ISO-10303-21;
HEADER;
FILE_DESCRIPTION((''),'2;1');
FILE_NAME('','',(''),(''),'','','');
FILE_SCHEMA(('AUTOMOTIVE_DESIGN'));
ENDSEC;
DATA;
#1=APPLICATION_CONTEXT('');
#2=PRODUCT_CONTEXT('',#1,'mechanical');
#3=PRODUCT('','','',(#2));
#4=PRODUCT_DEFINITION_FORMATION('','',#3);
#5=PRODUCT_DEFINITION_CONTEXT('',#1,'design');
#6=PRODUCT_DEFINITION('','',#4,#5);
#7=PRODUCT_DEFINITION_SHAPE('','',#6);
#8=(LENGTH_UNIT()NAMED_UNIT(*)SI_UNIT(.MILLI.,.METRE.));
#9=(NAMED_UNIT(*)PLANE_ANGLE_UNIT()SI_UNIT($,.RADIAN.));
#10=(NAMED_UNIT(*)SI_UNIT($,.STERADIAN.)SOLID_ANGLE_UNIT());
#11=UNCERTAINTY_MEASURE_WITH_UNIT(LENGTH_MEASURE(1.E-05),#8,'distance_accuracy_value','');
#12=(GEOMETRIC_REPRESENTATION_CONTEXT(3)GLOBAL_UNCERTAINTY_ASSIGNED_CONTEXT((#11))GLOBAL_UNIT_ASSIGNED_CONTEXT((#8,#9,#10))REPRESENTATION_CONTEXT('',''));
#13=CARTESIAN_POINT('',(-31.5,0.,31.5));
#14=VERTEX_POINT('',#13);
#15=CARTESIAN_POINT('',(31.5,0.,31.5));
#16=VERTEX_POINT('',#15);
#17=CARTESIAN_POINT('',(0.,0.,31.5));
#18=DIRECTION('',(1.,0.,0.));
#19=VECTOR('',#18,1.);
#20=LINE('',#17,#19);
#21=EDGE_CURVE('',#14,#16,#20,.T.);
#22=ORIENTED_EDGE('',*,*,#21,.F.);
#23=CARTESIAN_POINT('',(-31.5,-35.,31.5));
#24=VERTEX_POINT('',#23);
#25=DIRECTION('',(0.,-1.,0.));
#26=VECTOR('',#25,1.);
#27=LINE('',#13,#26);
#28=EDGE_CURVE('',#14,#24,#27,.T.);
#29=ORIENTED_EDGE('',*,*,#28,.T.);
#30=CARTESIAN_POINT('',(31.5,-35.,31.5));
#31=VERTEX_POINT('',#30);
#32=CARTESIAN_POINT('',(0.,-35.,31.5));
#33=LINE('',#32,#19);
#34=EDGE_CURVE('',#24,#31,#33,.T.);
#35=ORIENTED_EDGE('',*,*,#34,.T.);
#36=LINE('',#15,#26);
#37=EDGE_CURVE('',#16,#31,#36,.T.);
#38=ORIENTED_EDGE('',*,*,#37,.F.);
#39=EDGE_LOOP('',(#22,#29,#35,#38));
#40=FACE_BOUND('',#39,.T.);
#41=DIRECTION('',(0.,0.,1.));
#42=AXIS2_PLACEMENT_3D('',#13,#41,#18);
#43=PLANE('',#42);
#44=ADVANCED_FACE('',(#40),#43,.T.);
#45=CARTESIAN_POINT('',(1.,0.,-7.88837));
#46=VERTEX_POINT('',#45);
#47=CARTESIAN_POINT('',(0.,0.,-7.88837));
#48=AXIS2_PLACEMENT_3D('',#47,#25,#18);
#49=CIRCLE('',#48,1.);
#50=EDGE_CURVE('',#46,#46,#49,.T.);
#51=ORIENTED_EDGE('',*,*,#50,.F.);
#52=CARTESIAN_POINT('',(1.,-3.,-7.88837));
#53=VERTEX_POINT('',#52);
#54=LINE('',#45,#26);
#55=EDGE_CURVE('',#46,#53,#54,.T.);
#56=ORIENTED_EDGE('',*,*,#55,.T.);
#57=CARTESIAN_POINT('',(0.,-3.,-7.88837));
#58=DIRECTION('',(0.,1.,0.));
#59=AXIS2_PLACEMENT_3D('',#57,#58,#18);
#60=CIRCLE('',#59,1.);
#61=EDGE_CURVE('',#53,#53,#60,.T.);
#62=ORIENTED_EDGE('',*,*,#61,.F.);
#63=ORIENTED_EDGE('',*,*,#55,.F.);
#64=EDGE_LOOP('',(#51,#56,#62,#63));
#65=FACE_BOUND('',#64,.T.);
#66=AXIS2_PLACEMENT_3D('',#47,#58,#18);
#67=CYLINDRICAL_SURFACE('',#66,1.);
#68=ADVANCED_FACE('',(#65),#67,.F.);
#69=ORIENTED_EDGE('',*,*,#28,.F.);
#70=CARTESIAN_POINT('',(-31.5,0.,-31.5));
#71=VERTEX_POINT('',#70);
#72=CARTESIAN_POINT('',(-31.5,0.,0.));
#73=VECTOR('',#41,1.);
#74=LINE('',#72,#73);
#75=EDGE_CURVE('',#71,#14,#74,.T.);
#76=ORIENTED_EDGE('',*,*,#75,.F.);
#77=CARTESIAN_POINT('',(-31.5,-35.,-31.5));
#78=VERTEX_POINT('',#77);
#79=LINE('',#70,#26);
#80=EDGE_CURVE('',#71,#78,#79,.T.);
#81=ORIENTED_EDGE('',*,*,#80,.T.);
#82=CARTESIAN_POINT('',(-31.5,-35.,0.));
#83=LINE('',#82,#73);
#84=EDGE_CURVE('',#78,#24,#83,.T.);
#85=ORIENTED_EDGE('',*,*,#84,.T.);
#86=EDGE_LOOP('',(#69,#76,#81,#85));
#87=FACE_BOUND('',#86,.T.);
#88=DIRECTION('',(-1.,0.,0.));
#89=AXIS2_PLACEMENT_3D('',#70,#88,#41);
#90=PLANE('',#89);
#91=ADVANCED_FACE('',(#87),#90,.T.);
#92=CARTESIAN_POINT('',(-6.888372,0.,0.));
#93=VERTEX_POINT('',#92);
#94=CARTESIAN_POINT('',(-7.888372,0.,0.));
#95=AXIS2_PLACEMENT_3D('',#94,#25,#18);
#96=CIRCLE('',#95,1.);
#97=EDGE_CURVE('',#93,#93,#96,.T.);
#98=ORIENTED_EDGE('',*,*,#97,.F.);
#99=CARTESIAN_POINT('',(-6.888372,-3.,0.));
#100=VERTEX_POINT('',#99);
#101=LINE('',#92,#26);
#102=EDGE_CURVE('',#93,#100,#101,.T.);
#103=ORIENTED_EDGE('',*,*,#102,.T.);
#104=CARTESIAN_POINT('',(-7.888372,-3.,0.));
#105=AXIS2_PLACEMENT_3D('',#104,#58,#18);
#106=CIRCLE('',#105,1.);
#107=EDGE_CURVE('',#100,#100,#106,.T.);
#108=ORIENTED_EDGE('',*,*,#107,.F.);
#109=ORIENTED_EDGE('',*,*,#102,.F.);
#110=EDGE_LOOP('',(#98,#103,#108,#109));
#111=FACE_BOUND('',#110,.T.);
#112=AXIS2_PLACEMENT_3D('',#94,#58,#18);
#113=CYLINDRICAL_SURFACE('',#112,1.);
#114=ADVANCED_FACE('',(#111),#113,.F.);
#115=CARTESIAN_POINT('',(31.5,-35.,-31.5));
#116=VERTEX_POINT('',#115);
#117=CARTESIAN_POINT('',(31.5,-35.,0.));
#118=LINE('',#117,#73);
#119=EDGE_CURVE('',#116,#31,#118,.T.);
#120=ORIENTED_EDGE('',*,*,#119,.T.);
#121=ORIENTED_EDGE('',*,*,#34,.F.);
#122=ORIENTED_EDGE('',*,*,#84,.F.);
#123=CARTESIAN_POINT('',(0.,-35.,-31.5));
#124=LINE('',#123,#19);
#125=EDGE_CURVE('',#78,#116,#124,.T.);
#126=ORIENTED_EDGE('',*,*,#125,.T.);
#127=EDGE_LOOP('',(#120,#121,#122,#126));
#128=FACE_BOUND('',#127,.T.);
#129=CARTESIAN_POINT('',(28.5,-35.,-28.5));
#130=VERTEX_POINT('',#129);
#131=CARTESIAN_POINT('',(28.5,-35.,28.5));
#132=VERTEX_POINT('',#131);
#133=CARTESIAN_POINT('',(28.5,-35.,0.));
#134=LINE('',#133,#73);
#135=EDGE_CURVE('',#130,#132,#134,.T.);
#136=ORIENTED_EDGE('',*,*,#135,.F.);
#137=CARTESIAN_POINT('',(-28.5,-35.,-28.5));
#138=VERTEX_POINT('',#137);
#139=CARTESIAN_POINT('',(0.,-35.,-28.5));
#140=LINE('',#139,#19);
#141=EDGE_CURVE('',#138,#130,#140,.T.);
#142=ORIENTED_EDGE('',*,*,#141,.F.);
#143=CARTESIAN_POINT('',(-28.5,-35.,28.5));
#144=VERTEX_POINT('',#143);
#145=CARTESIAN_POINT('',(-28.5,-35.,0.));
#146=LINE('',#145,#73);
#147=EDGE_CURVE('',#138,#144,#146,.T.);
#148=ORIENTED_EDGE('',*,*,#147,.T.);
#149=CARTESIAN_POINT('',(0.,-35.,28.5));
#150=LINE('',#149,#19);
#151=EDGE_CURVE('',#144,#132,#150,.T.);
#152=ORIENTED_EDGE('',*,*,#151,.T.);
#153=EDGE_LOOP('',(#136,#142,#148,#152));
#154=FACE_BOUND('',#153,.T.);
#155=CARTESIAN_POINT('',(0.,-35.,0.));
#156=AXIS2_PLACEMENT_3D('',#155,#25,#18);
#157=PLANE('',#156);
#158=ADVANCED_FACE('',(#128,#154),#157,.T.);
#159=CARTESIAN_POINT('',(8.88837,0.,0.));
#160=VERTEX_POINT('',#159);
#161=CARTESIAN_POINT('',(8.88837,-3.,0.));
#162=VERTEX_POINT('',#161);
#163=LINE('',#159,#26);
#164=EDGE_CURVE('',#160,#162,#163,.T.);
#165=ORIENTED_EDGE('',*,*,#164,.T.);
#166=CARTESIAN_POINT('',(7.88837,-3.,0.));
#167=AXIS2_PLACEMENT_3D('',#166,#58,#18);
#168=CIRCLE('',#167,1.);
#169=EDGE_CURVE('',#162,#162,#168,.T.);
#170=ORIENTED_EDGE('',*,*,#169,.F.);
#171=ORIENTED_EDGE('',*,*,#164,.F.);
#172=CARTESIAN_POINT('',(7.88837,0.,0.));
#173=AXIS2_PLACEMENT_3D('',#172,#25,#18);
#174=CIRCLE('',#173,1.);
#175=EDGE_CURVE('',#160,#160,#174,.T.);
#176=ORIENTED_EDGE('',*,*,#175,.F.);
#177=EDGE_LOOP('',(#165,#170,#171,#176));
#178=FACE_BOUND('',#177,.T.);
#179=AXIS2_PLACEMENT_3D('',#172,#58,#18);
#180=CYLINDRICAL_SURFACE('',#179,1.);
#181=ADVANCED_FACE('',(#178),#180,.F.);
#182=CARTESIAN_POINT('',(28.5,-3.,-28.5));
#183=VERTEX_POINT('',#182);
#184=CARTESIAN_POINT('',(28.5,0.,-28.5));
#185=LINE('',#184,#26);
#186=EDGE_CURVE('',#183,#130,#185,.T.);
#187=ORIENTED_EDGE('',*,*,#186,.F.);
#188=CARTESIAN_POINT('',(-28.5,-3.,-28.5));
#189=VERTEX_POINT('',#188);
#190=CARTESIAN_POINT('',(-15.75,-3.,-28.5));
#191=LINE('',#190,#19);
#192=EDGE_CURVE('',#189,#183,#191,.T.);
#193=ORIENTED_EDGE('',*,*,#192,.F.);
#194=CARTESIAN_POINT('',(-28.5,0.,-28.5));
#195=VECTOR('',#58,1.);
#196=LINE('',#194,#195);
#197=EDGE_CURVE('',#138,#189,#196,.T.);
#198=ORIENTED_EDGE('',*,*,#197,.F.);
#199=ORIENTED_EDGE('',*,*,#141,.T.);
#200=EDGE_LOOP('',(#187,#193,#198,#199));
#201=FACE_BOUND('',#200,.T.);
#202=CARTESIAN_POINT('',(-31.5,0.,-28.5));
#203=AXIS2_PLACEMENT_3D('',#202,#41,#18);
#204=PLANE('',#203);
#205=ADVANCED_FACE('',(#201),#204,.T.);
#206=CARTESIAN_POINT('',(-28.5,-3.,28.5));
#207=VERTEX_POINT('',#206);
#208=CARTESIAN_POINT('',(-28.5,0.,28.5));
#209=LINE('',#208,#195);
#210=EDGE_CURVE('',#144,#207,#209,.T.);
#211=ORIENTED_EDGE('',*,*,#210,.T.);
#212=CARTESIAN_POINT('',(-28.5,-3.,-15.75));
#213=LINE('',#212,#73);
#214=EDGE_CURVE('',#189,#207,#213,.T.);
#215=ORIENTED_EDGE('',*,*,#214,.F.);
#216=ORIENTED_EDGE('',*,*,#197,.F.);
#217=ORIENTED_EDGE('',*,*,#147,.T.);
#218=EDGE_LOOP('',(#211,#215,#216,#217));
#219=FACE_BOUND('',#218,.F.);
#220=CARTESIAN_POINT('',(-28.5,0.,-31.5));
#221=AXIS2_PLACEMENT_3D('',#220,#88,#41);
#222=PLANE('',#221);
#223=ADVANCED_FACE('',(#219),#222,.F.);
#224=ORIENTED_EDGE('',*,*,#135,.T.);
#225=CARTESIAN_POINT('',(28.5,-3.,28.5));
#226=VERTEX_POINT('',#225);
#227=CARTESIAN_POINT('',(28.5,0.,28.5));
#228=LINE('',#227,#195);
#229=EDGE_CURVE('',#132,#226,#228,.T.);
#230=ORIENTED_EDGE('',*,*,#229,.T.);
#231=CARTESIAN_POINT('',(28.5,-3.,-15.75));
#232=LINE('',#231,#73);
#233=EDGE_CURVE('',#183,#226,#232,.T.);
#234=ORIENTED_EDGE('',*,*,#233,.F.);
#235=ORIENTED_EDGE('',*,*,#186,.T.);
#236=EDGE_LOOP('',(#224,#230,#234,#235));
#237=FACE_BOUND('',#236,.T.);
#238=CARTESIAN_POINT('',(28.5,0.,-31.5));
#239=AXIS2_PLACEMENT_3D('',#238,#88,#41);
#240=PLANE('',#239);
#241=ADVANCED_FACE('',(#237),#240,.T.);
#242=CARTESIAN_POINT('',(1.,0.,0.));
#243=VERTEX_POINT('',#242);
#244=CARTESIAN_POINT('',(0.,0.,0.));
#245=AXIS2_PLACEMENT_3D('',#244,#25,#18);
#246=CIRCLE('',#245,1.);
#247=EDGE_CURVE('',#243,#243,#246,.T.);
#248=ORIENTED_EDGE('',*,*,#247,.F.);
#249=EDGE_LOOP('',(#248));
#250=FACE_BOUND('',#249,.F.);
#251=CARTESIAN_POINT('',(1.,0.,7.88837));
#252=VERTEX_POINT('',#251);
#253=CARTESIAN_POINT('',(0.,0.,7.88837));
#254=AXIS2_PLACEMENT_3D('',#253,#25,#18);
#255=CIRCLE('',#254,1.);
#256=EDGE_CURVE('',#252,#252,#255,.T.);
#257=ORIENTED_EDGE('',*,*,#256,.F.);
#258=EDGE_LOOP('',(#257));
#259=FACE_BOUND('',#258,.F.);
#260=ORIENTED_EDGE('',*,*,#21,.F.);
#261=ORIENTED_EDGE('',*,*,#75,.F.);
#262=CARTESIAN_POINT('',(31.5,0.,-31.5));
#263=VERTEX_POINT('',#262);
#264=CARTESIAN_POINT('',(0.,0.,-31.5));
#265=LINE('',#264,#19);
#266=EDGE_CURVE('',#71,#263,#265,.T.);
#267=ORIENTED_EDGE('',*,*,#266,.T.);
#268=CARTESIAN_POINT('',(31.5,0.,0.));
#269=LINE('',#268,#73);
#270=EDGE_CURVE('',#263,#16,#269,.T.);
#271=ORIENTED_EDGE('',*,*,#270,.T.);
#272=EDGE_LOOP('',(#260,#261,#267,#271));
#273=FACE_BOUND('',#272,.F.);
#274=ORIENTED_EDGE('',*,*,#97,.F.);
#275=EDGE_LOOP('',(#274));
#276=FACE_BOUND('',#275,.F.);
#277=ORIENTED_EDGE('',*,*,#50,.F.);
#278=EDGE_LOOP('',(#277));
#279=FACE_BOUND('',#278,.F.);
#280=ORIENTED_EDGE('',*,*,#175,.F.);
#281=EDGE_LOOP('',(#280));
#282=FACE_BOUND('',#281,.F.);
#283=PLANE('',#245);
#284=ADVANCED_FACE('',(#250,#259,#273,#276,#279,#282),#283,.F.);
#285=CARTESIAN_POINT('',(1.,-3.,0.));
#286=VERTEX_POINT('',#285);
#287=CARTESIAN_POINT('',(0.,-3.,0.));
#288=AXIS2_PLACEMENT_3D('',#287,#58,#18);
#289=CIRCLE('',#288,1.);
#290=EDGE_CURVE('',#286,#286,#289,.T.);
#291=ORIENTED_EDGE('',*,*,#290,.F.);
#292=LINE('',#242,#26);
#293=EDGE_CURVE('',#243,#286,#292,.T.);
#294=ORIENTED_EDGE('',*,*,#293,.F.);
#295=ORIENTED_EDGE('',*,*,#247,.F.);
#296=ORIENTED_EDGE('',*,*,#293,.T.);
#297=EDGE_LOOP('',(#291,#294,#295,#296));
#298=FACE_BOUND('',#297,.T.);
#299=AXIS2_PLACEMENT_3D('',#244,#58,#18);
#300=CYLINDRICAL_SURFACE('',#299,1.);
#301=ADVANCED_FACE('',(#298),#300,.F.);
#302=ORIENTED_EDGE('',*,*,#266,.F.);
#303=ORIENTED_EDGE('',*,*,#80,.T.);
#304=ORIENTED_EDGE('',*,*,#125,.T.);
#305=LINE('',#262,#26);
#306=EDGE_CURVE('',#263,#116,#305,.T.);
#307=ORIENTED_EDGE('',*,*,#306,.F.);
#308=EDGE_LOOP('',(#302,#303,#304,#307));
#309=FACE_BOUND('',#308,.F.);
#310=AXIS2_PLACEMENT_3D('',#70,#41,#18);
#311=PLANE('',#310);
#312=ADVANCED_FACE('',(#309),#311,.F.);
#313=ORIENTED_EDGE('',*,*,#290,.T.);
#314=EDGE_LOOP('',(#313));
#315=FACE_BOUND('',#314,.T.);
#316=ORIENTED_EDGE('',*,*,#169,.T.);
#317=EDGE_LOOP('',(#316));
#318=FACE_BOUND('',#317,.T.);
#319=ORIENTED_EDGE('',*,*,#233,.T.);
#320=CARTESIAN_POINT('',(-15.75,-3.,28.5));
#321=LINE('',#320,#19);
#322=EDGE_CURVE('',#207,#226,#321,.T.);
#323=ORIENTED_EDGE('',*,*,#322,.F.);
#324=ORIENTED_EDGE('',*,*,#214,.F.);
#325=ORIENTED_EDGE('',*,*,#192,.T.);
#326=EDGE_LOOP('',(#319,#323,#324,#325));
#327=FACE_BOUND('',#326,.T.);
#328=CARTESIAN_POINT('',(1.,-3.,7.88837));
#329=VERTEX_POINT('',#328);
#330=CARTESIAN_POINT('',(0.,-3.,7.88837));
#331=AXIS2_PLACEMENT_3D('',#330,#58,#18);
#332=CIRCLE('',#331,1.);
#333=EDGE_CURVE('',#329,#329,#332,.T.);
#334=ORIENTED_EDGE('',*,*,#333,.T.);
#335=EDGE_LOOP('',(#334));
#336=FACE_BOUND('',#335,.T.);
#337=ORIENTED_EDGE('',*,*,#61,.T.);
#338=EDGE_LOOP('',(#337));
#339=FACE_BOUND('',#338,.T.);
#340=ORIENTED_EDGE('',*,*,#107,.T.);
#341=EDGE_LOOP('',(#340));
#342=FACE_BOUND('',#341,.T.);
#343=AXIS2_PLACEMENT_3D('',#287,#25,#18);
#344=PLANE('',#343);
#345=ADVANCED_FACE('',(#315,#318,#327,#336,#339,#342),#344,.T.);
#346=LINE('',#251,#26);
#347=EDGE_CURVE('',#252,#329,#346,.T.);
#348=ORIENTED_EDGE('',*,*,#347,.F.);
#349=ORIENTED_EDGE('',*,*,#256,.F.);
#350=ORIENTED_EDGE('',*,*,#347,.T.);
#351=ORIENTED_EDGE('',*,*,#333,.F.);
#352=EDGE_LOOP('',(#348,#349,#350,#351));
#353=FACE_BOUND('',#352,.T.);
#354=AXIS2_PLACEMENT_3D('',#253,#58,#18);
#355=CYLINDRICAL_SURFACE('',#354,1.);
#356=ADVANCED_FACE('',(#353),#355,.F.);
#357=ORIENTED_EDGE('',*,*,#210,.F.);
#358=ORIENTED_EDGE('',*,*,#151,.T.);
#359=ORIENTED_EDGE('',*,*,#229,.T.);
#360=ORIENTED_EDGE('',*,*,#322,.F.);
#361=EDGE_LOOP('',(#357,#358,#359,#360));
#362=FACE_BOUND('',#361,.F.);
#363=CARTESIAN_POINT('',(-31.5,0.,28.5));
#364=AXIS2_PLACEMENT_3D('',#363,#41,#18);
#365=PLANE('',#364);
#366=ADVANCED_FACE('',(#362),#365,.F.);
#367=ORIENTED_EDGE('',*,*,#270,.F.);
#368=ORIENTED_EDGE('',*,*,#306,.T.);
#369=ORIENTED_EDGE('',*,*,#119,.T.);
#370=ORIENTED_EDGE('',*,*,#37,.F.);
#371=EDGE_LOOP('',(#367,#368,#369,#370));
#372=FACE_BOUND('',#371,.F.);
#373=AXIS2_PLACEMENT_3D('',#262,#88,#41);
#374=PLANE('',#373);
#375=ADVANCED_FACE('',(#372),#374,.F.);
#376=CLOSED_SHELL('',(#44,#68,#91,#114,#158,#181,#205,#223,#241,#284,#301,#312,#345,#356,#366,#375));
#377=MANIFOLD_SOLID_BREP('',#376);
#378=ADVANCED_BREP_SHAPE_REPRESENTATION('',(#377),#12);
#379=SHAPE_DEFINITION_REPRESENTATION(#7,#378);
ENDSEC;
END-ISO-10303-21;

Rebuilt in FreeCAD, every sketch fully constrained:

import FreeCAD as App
import Part
import Sketcher

V = App.Vector
Q = App.Units.Quantity


def faces_at(feature, points):
    """Names of the faces that lie closest to the given points."""
    faces = feature.Shape.Faces
    near = lambda p: min(range(len(faces)), key=lambda i: faces[i].distToShape(Part.Vertex(*p))[0])
    return sorted({f"Face{near(p) + 1}" for p in points})

doc = App.newDocument("Part")
body = doc.addObject("PartDesign::Body", "Body")

# Sketch on XZ plane
sketch1 = body.newObject("Sketcher::SketchObject", "Sketch")
sketch1.AttachmentSupport = (doc.getObject("XZ_Plane"), [""])
sketch1.MapMode = "FlatFace"
sketch1.addGeometry([
    Part.LineSegment(V(-32, 32, 0), V(-32, -32, 0)),
    Part.LineSegment(V(-32, -32, 0), V(32, -32, 0)),
    Part.LineSegment(V(32, -32, 0), V(32, 32, 0)),
    Part.LineSegment(V(32, 32, 0), V(-32, 32, 0)),
], False)
sketch1.addConstraint([
    Sketcher.Constraint("Coincident", 0, 2, 1, 1),
    Sketcher.Constraint("Coincident", 1, 2, 2, 1),
    Sketcher.Constraint("Coincident", 2, 2, 3, 1),
    Sketcher.Constraint("Coincident", 3, 2, 0, 1),
    Sketcher.Constraint("Vertical", 0),
    Sketcher.Constraint("Horizontal", 1),
    Sketcher.Constraint("Vertical", 2),
    Sketcher.Constraint("Horizontal", 3),
    Sketcher.Constraint("Symmetric", 0, 2, 2, 2, -1, 1),
    Sketcher.Constraint("Equal", 3, 0),
    Sketcher.Constraint("DistanceX", 1, 1, 1, 2, Q("63 mm")),
])
pad1 = body.newObject("PartDesign::Pad", "Pad")
pad1.Profile = sketch1
pad1.Length = 35
doc.recompute()

thickness = body.newObject("PartDesign::Thickness", "Thickness")
thickness.Base = (pad1, faces_at(pad1, [(0, -35, 0)]))
thickness.Value = 3
thickness.Reversed = True
thickness.Join = "Arc"

# Sketch on XZ plane
sketch2 = body.newObject("Sketcher::SketchObject", "Sketch001")
sketch2.AttachmentSupport = (doc.getObject("XZ_Plane"), [""])
sketch2.MapMode = "FlatFace"
sketch2.addGeometry([
    Part.Circle(V(7.9, 0, 0), V(0, 0, 1), 1),  # 0
    Part.Circle(V(-7.9, 0, 0), V(0, 0, 1), 1),  # 1
    Part.Circle(V(0, 7.9, 0), V(0, 0, 1), 1),  # 2
    Part.Circle(V(0, -7.9, 0), V(0, 0, 1), 1),  # 3
    Part.Circle(V(0, 0, 0), V(0, 0, 1), 1),  # 4
], False)
sketch2.addConstraint([
    Sketcher.Constraint("Coincident", 4, 3, -1, 1),
    Sketcher.Constraint("Equal", 0, 1),
    Sketcher.Constraint("Equal", 1, 2),
    Sketcher.Constraint("Equal", 2, 3),
    Sketcher.Constraint("Equal", 3, 4),
    Sketcher.Constraint("Symmetric", 0, 3, 1, 3, -1, 1),
    Sketcher.Constraint("Symmetric", 2, 3, 3, 3, -1, 1),
    Sketcher.Constraint("PointOnObject", 0, 3, -1),
    Sketcher.Constraint("PointOnObject", 2, 3, -2),
    Sketcher.Constraint("Diameter", 0, Q("2 mm")),
    Sketcher.Constraint("DistanceX", -1, 1, 0, 3, Q("7.88837 mm")),
    Sketcher.Constraint("DistanceY", -1, 1, 2, 3, Q("7.88837 mm")),
])
pocket1 = body.newObject("PartDesign::Pocket", "Pocket")
pocket1.Profile = sketch2
pocket1.Length = 25
pocket1.Reversed = True

doc.recompute()
